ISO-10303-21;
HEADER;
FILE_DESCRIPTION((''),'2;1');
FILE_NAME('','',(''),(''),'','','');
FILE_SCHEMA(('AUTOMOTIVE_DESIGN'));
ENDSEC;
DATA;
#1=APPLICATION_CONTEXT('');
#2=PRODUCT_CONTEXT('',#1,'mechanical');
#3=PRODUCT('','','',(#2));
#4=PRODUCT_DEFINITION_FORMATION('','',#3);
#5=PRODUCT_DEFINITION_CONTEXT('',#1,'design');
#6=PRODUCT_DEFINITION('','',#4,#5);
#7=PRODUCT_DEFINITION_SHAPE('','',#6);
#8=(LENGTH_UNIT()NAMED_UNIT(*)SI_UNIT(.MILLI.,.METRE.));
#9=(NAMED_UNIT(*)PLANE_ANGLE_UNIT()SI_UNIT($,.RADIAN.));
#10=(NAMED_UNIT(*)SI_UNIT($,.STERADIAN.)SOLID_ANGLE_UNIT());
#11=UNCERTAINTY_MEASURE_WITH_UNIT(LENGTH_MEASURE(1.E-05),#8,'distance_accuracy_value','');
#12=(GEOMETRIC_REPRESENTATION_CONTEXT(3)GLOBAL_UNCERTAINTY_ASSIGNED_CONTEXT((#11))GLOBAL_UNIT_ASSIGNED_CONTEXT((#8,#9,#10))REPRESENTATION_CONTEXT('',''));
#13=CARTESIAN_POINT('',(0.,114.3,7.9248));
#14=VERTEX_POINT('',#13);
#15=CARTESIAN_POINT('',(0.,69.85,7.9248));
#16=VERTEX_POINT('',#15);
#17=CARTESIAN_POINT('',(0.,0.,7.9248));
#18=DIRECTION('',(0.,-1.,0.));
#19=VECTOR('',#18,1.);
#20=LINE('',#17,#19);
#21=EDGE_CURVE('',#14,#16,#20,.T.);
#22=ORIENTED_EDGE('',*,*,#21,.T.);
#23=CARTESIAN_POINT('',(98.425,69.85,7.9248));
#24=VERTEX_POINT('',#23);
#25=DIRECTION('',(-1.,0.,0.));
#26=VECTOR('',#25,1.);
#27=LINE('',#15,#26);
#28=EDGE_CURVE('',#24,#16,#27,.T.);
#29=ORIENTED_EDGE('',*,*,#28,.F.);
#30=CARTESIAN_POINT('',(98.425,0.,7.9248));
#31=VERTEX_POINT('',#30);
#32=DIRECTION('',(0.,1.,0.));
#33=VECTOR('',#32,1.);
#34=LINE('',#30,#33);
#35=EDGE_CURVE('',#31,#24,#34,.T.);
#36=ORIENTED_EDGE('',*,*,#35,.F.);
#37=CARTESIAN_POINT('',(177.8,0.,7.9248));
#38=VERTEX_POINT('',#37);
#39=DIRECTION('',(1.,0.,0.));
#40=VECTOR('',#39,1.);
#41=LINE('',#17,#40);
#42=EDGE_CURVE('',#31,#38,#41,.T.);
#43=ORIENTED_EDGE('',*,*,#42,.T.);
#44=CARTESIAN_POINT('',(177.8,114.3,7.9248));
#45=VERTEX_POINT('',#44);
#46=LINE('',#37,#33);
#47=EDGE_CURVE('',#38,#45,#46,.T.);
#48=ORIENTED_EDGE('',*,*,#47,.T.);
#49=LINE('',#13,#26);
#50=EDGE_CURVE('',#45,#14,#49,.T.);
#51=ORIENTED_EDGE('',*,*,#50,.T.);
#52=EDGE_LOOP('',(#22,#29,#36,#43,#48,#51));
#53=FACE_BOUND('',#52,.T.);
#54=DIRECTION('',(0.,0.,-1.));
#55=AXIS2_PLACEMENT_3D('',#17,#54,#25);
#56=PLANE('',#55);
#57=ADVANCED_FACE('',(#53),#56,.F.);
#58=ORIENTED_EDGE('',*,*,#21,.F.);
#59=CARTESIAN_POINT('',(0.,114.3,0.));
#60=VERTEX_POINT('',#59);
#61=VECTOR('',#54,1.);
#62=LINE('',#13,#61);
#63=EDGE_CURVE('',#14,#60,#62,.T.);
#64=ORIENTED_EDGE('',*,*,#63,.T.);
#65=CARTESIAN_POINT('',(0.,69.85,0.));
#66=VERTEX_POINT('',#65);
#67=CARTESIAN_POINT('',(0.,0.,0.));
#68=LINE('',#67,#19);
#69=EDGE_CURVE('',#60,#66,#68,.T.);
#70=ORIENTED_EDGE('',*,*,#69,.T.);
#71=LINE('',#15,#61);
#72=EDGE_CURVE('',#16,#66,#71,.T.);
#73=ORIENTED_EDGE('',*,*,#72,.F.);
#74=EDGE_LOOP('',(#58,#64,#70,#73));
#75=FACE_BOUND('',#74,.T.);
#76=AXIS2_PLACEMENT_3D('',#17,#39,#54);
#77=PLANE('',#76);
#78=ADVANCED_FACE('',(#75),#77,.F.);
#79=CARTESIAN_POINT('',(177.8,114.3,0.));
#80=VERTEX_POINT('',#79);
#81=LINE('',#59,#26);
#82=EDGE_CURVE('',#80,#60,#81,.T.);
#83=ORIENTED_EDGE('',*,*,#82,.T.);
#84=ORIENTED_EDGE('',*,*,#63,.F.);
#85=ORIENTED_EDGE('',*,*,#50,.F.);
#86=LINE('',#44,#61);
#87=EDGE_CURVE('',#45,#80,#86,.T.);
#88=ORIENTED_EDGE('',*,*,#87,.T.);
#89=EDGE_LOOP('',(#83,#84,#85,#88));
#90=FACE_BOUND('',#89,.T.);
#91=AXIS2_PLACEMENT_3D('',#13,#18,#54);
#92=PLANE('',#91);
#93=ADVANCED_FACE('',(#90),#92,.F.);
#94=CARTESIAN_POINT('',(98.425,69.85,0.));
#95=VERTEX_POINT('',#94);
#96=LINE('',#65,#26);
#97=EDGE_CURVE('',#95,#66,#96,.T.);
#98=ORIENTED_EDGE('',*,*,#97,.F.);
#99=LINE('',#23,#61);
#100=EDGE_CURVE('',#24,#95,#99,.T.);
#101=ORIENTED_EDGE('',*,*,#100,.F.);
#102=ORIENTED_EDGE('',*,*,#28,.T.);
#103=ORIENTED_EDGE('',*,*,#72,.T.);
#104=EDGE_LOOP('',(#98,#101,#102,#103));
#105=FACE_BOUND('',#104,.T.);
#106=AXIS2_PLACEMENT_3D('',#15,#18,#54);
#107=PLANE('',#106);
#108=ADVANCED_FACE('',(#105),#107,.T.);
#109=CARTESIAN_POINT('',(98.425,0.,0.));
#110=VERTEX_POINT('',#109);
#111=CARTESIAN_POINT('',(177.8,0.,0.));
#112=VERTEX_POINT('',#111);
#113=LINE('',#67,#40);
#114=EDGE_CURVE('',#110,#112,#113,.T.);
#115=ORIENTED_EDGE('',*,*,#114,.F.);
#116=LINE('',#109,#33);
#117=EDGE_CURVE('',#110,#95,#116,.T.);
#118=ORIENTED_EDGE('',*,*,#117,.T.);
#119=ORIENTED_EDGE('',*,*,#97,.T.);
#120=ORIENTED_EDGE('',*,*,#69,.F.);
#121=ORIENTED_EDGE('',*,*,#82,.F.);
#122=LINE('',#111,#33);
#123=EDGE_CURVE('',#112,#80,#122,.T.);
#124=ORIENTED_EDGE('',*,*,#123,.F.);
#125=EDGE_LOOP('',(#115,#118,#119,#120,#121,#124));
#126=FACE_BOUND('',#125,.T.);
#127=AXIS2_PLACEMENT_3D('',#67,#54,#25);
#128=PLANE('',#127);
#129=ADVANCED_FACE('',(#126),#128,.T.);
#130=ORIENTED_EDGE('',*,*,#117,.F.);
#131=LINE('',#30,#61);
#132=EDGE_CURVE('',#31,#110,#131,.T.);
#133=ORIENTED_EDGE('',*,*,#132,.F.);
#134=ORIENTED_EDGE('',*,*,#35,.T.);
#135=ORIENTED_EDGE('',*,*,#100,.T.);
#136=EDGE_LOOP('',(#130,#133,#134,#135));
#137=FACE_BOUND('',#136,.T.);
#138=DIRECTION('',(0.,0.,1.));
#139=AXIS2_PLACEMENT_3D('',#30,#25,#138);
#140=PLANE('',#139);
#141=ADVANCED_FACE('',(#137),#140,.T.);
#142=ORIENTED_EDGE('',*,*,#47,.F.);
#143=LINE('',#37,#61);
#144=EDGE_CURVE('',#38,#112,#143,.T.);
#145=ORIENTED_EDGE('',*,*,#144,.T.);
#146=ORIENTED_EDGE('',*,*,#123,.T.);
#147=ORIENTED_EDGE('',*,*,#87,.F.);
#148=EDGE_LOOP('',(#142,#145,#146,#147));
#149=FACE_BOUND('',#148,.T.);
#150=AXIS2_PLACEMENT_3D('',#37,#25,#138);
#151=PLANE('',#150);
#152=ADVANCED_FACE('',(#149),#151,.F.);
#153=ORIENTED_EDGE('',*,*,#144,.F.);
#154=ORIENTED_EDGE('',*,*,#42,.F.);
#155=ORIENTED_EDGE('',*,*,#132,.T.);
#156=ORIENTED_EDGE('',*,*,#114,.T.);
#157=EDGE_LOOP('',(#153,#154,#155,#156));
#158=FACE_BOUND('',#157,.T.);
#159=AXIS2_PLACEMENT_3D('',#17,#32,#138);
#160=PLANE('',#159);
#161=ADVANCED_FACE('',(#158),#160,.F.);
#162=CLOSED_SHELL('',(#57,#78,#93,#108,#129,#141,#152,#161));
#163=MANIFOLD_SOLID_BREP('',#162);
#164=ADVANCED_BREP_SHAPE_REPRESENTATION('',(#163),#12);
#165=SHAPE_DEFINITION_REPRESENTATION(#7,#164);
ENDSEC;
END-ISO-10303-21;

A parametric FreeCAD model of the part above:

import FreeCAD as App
import Part
import Sketcher
from FreeCAD import Vector
Q = App.Units.Quantity


def add_polygon(sketch, points):
    """Adds a closed chain of lines whose ends are joined by coincident constraints."""
    first, n = sketch.GeometryCount, len(points)
    for a, b in zip(points, points[1:] + points[:1]):
        sketch.addGeometry(Part.LineSegment(App.Vector(*a, 0), App.Vector(*b, 0)), False)
    for i in range(n):
        sketch.addConstraint(Sketcher.Constraint("Coincident", first + i, 2, first + (i + 1) % n, 1))

doc = App.newDocument("Part")
params = doc.addObject("Spreadsheet::Sheet", "Params")
for row, (alias, value) in enumerate([
    ("sketch1_width", "7 in"),
    ("sketch1_height", "4.5 in"),
    ("pad1_length", "0.312 in"),
    ("sketch2_height", "2.75 in"),
    ("sketch2_width", "3.875 in"),
], start=1):
    params.set(f"A{row}", alias)
    params.set(f"B{row}", "=" + value)
    params.setAlias(f"B{row}", alias)

body = doc.addObject("PartDesign::Body", "Body")

sketch1 = body.newObject("Sketcher::SketchObject", "Sketch")
sketch1.AttachmentSupport = (doc.getObject("XY_Plane"), [""])
sketch1.MapMode = "FlatFace"
add_polygon(sketch1, [(0, 114), (0, 0), (178, 0), (178, 114)])
sketch1.addConstraint([
    Sketcher.Constraint("Vertical", 0),
    Sketcher.Constraint("Horizontal", 1),
    Sketcher.Constraint("Vertical", 2),
    Sketcher.Constraint("Horizontal", 3),
    Sketcher.Constraint("Coincident", 0, 2, -1, 1),
    Sketcher.Constraint("DistanceX", 1, 1, 1, 2, Q("7 in")),
    Sketcher.Constraint("DistanceY", 0, 2, 0, 1, Q("4.5 in")),
])
sketch1.setExpression("Constraints[9]", "Params.sketch1_width")
sketch1.setExpression("Constraints[10]", "Params.sketch1_height")
pad1 = body.newObject("PartDesign::Pad", "Pad")
pad1.Profile = sketch1
pad1.setExpression("Length", "Params.pad1_length")

sketch2 = body.newObject("Sketcher::SketchObject", "Sketch001")
sketch2.AttachmentSupport = (doc.getObject("XY_Plane"), [""])
sketch2.MapMode = "FlatFace"
add_polygon(sketch2, [(0, 70), (0, 0), (98, 0), (98, 70)])
sketch2.addConstraint([
    Sketcher.Constraint("Vertical", 0),
    Sketcher.Constraint("Horizontal", 1),
    Sketcher.Constraint("Vertical", 2),
    Sketcher.Constraint("Horizontal", 3),
    Sketcher.Constraint("Coincident", 0, 2, -1, 1),
    Sketcher.Constraint("DistanceY", 0, 2, 0, 1, Q("2.75 in")),
    Sketcher.Constraint("DistanceX", 1, 1, 1, 2, Q("3.875 in")),
])
sketch2.setExpression("Constraints[9]", "Params.sketch2_height")
sketch2.setExpression("Constraints[10]", "Params.sketch2_width")
pocket1 = body.newObject("PartDesign::Pocket", "Pocket")
pocket1.Profile = sketch2
pocket1.Type = "ThroughAll"
pocket1.Reversed = True

doc.recompute()
